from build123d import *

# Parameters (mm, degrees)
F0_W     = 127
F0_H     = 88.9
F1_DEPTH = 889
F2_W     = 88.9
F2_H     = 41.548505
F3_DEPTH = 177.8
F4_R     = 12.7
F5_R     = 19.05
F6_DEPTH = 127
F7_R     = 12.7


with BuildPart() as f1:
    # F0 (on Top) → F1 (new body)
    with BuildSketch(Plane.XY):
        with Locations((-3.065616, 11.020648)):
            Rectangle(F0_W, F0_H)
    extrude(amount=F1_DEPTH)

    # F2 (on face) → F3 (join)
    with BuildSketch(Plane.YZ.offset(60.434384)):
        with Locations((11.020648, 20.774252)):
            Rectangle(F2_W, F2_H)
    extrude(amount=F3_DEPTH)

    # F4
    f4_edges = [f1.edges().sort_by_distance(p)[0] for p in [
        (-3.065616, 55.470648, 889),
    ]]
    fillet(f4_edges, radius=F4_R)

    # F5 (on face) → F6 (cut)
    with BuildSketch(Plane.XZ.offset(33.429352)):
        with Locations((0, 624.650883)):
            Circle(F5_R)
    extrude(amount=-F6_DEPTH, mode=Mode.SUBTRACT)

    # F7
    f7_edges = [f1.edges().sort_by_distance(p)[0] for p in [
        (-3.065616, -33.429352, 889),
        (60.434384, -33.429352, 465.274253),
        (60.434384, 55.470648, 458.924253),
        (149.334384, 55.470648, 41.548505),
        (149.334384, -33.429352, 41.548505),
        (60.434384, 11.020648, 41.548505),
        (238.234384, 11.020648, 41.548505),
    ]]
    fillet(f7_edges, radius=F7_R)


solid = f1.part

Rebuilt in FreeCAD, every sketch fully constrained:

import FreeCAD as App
import Part
import Sketcher
Q = App.Units.Quantity


def edges_at(feature, points):
    """Names of the edges that pass closest to the given points."""
    edges = feature.Shape.Edges
    near = lambda p: min(range(len(edges)), key=lambda i: edges[i].distToShape(Part.Vertex(*p))[0])
    return sorted({f"Edge{near(p) + 1}" for p in points})

doc = App.newDocument("Part")
body = doc.addObject("PartDesign::Body", "Body")

sketch1 = body.newObject("Sketcher::SketchObject", "Sketch")
sketch1.AttachmentSupport = (doc.getObject("XY_Plane"), [""])
sketch1.MapMode = "FlatFace"
sketch1.addGeometry(Part.LineSegment(App.Vector(-66.565616, 55.470648, 0), App.Vector(-66.565616, -33.429352, 0)), False)
sketch1.addGeometry(Part.LineSegment(App.Vector(-66.565616, -33.429352, 0), App.Vector(60.434384, -33.429352, 0)), False)
sketch1.addGeometry(Part.LineSegment(App.Vector(60.434384, -33.429352, 0), App.Vector(60.434384, 55.470648, 0)), False)
sketch1.addGeometry(Part.LineSegment(App.Vector(60.434384, 55.470648, 0), App.Vector(-66.565616, 55.470648, 0)), False)
sketch1.addConstraint(Sketcher.Constraint("Coincident", 0, 2, 1, 1))
sketch1.addConstraint(Sketcher.Constraint("Coincident", 1, 2, 2, 1))
sketch1.addConstraint(Sketcher.Constraint("Coincident", 2, 2, 3, 1))
sketch1.addConstraint(Sketcher.Constraint("Coincident", 3, 2, 0, 1))
sketch1.addConstraint(Sketcher.Constraint("Vertical", 0))
sketch1.addConstraint(Sketcher.Constraint("Horizontal", 1))
sketch1.addConstraint(Sketcher.Constraint("Vertical", 2))
sketch1.addConstraint(Sketcher.Constraint("Horizontal", 3))
sketch1.addConstraint(Sketcher.Constraint("DistanceX", 1, 1, 1, 2, Q("5 in")))
sketch1.addConstraint(Sketcher.Constraint("DistanceY", 0, 2, 0, 1, Q("3.5 in")))
sketch1.addConstraint(Sketcher.Constraint("DistanceX", 0, 2, -1, 1, 66.565616))
sketch1.addConstraint(Sketcher.Constraint("DistanceY", 0, 2, -1, 1, 33.429352))
pad1 = body.newObject("PartDesign::Pad", "Pad")
pad1.Profile = sketch1
pad1.Length = Q("35 in")

sketch2 = body.newObject("Sketcher::SketchObject", "Sketch001")
sketch2.AttachmentSupport = (doc.getObject("YZ_Plane"), [""])
sketch2.MapMode = "FlatFace"
sketch2.AttachmentOffset = App.Placement(App.Vector(0, 0, 60.434384), App.Rotation())
sketch2.addGeometry(Part.LineSegment(App.Vector(-33.429352, 41.548504, 0), App.Vector(-33.429352, 0, 0)), False)
sketch2.addGeometry(Part.LineSegment(App.Vector(-33.429352, 0, 0), App.Vector(55.470648, 0, 0)), False)
sketch2.addGeometry(Part.LineSegment(App.Vector(55.470648, 0, 0), App.Vector(55.470648, 41.548504, 0)), False)
sketch2.addGeometry(Part.LineSegment(App.Vector(55.470648, 41.548504, 0), App.Vector(-33.429352, 41.548504, 0)), False)
sketch2.addConstraint(Sketcher.Constraint("Coincident", 0, 2, 1, 1))
sketch2.addConstraint(Sketcher.Constraint("Coincident", 1, 2, 2, 1))
sketch2.addConstraint(Sketcher.Constraint("Coincident", 2, 2, 3, 1))
sketch2.addConstraint(Sketcher.Constraint("Coincident", 3, 2, 0, 1))
sketch2.addConstraint(Sketcher.Constraint("Vertical", 0))
sketch2.addConstraint(Sketcher.Constraint("Horizontal", 1))
sketch2.addConstraint(Sketcher.Constraint("Vertical", 2))
sketch2.addConstraint(Sketcher.Constraint("Horizontal", 3))
sketch2.addConstraint(Sketcher.Constraint("PointOnObject", 0, 2, -1))
sketch2.addConstraint(Sketcher.Constraint("DistanceX", 1, 1, 1, 2, Q("3.5 in")))
sketch2.addConstraint(Sketcher.Constraint("DistanceY", 0, 2, 0, 1, 41.548505))
sketch2.addConstraint(Sketcher.Constraint("DistanceX", 0, 2, -1, 1, 33.429352))
pad2 = body.newObject("PartDesign::Pad", "Pad001")
pad2.Profile = sketch2
pad2.Length = Q("7 in")
doc.recompute()

fillet = body.newObject("PartDesign::Fillet", "Fillet")
fillet.Base = (pad2, edges_at(pad2, [(-3.066, 55.471, 889)]))
fillet.Radius = Q("0.5 in")

sketch3 = body.newObject("Sketcher::SketchObject", "Sketch002")
sketch3.AttachmentSupport = (doc.getObject("XZ_Plane"), [""])
sketch3.MapMode = "FlatFace"
sketch3.AttachmentOffset = App.Placement(App.Vector(0, 0, 33.429352), App.Rotation())
sketch3.addGeometry(Part.Circle(App.Vector(0, 624.650883, 0), App.Vector(0, 0, 1), 19.05), False)
sketch3.addConstraint(Sketcher.Constraint("PointOnObject", 0, 3, -2))
sketch3.addConstraint(Sketcher.Constraint("Diameter", 0, Q("1.5 in")))
sketch3.addConstraint(Sketcher.Constraint("DistanceY", -1, 1, 0, 3, 624.650883))
pocket1 = body.newObject("PartDesign::Pocket", "Pocket")
pocket1.Profile = sketch3
pocket1.Length = Q("5 in")
doc.recompute()

fillet2 = body.newObject("PartDesign::Fillet", "Fillet001")
fillet2.Base = (pocket1, edges_at(pocket1, [
    (-3.066, -33.429, 889),
    (60.434, -33.429, 465.274),
    (60.434, 55.471, 458.924),
    (149.334, 55.471, 41.549),
    (149.334, -33.429, 41.549),
    (60.434, 11.021, 41.549),
    (238.234, 11.021, 41.549),
]))
fillet2.Radius = Q("0.5 in")

doc.recompute()
